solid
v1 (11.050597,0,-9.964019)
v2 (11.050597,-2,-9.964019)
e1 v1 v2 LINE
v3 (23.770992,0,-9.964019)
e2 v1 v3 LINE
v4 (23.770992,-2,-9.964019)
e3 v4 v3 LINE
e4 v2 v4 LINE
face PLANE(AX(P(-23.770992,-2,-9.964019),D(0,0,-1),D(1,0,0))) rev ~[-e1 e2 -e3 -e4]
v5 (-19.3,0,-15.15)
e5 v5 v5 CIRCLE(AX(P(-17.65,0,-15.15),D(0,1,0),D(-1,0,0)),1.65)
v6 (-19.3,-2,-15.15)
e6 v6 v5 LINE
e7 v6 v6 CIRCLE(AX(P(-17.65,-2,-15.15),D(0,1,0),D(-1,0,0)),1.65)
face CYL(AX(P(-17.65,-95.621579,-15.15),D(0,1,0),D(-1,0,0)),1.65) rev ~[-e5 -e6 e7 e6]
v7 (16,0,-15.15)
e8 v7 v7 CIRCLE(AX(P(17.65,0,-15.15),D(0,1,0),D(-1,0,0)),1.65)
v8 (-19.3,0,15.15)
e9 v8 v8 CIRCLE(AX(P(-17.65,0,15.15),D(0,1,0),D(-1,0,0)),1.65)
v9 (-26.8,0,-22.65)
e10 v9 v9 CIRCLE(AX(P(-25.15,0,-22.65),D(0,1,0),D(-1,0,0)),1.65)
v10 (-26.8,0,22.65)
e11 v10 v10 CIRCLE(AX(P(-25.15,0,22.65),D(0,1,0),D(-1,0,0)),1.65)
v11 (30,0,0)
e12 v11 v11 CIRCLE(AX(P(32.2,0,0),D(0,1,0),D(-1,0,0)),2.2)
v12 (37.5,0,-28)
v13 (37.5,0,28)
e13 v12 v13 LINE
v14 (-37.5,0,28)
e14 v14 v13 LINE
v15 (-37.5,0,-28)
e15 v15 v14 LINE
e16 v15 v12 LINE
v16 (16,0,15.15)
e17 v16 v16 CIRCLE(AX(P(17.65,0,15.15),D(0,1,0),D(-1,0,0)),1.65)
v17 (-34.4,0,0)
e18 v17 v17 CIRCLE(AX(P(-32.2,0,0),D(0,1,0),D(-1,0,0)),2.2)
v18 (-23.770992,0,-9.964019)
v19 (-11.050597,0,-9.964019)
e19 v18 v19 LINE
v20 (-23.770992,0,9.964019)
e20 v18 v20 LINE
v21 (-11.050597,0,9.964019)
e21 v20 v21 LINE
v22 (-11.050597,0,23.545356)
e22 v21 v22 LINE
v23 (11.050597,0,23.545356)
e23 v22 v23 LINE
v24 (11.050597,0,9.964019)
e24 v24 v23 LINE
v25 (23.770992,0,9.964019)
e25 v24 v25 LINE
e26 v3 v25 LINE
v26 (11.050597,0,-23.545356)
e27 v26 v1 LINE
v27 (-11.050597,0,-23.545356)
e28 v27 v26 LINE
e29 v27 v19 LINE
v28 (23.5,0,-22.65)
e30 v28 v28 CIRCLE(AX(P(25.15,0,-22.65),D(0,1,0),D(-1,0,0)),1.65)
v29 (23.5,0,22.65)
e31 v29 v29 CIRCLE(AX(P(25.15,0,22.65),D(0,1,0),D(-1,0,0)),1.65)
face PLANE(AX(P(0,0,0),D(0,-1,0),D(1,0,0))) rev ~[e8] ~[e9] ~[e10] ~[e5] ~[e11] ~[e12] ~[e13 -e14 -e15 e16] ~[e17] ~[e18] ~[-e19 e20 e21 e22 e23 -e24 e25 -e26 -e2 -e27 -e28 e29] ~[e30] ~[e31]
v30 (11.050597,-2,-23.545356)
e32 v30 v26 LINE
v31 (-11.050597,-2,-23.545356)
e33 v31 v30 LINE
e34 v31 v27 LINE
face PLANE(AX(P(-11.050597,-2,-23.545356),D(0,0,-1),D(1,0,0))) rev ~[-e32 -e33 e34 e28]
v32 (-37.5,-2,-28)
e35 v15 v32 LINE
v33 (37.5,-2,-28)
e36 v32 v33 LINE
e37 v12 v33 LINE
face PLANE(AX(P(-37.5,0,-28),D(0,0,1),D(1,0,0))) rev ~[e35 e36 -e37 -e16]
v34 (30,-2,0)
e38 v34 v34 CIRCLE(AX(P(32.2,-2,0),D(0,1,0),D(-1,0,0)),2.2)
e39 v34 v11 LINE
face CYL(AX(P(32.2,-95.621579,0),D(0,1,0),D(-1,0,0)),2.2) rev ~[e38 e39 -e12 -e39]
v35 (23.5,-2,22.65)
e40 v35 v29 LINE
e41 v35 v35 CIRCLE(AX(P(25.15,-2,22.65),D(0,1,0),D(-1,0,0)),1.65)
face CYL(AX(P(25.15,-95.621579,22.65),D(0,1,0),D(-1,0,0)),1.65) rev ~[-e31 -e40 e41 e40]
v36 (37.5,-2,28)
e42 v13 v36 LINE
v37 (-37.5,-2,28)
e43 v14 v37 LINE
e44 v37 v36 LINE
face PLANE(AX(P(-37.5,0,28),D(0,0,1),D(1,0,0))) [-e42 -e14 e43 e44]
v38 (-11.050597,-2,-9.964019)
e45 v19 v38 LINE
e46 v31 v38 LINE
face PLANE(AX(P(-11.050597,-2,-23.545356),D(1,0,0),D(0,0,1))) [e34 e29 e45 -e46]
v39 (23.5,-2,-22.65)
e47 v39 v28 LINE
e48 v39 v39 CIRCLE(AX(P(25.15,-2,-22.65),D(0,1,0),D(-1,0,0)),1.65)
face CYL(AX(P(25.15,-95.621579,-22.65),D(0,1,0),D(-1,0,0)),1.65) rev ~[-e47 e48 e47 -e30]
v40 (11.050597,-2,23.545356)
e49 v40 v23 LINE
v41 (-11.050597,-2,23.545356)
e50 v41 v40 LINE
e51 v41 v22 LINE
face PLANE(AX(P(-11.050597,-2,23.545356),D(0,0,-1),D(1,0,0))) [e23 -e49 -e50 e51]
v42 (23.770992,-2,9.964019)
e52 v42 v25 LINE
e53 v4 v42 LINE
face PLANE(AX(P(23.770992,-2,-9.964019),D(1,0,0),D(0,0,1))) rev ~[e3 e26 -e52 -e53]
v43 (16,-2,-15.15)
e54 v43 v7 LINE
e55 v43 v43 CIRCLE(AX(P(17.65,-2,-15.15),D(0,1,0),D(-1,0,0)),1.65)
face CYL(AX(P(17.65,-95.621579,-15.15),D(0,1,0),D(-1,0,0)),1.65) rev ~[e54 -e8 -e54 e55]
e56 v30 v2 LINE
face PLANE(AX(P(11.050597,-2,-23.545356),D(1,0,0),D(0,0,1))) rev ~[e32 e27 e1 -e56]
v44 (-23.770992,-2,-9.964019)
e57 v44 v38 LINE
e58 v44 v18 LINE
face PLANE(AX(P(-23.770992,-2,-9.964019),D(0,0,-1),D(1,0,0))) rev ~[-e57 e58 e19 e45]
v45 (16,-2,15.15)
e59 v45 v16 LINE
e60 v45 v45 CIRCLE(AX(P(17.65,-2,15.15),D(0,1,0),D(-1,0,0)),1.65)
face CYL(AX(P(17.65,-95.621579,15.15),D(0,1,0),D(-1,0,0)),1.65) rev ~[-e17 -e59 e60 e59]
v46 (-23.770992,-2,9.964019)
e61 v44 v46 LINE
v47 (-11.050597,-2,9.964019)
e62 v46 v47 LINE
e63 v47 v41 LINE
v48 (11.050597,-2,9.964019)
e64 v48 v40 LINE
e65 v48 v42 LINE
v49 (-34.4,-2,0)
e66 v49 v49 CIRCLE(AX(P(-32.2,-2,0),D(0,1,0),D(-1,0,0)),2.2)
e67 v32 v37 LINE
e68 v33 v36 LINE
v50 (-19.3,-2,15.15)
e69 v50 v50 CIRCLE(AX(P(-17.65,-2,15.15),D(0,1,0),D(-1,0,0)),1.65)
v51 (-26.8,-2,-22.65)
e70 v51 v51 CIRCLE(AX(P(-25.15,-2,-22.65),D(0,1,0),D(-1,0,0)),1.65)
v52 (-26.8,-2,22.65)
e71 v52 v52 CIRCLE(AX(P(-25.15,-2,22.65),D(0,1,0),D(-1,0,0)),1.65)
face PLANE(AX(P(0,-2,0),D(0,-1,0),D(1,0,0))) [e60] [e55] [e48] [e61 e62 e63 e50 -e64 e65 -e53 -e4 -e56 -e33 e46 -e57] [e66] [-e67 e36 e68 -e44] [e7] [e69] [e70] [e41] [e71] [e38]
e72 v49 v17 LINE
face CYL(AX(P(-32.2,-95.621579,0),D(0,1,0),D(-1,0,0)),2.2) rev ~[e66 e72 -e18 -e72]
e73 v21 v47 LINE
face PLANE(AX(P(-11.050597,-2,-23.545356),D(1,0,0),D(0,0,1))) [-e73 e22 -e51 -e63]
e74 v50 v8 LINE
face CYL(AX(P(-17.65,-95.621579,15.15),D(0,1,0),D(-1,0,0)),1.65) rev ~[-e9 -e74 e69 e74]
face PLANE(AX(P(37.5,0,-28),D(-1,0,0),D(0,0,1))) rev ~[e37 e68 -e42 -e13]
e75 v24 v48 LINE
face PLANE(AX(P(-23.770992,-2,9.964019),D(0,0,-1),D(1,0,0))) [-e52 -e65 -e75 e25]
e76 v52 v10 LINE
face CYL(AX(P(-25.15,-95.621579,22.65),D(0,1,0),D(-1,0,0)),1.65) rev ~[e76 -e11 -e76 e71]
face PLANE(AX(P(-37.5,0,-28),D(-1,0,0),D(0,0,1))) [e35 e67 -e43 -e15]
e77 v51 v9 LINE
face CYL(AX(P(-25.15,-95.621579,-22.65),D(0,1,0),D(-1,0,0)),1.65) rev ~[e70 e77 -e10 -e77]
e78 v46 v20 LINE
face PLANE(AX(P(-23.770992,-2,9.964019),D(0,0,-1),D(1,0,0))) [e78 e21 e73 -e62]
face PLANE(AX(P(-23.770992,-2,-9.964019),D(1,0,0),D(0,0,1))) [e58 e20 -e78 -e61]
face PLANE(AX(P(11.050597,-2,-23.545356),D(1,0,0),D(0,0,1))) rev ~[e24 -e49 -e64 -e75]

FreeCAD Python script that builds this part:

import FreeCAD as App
import Part
import Sketcher
Q = App.Units.Quantity

doc = App.newDocument("Part")
body = doc.addObject("PartDesign::Body", "Body")

# Sketch on XZ plane
sketch1 = body.newObject("Sketcher::SketchObject", "Sketch")
sketch1.AttachmentSupport = (doc.getObject("XZ_Plane"), [""])
sketch1.MapMode = "FlatFace"
sketch1.addGeometry([
    Part.LineSegment(App.Vector(-38, 28, 0), App.Vector(-38, -28, 0)),
    Part.LineSegment(App.Vector(-38, -28, 0), App.Vector(38, -28, 0)),
    Part.LineSegment(App.Vector(38, -28, 0), App.Vector(38, 28, 0)),
    Part.LineSegment(App.Vector(38, 28, 0), App.Vector(-38, 28, 0)),
], False)
sketch1.addConstraint([
    Sketcher.Constraint("Coincident", 0, 2, 1, 1),
    Sketcher.Constraint("Coincident", 1, 2, 2, 1),
    Sketcher.Constraint("Coincident", 2, 2, 3, 1),
    Sketcher.Constraint("Coincident", 3, 2, 0, 1),
    Sketcher.Constraint("Vertical", 0),
    Sketcher.Constraint("Horizontal", 1),
    Sketcher.Constraint("Vertical", 2),
    Sketcher.Constraint("Horizontal", 3),
    Sketcher.Constraint("Symmetric", 0, 2, 2, 2, -1, 1),
    Sketcher.Constraint("DistanceX", 1, 1, 1, 2, Q("75 mm")),
    Sketcher.Constraint("DistanceY", 0, 2, 0, 1, Q("56 mm")),
])
pad1 = body.newObject("PartDesign::Pad", "Pad")
pad1.Profile = sketch1
pad1.Length = 2

# Sketch on XZ plane
sketch2 = body.newObject("Sketcher::SketchObject", "Sketch001")
sketch2.AttachmentSupport = (doc.getObject("XZ_Plane"), [""])
sketch2.MapMode = "FlatFace"
sketch2.AttachmentOffset = App.Placement(App.Vector(0, 0, 2), App.Rotation())
sketch2.addGeometry([
    Part.Circle(App.Vector(-32.2, 0, 0), App.Vector(0, 0, 1), 2.2),
    Part.Circle(App.Vector(32.2, 0, 0), App.Vector(0, 0, 1), 2.2),
], False)
sketch2.addConstraint([
    Sketcher.Constraint("Equal", 0, 1),
    Sketcher.Constraint("Symmetric", 0, 3, 1, 3, -1, 1),
    Sketcher.Constraint("PointOnObject", 0, 3, -1),
    Sketcher.Constraint("Diameter", 0, Q("4.4 mm")),
    Sketcher.Constraint("DistanceX", 0, 3, -1, 1, Q("32.2 mm")),
])
doc.recompute()
hole = body.newObject("PartDesign::Hole", "Hole")
hole.Profile = sketch2
hole.ThreadType = "None"
hole.Diameter = 4.4
hole.DepthType = "ThroughAll"

# Sketch on XZ plane
sketch3 = body.newObject("Sketcher::SketchObject", "Sketch002")
sketch3.AttachmentSupport = (doc.getObject("XZ_Plane"), [""])
sketch3.MapMode = "FlatFace"
sketch3.AttachmentOffset = App.Placement(App.Vector(0, 0, 2), App.Rotation())
sketch3.addGeometry([
    Part.Circle(App.Vector(-25.1, 22.6, 0), App.Vector(0, 0, 1), 1.6),
    Part.Circle(App.Vector(-25.1, -22.6, 0), App.Vector(0, 0, 1), 1.6),
    Part.Circle(App.Vector(25.1, -22.6, 0), App.Vector(0, 0, 1), 1.6),
    Part.Circle(App.Vector(25.1, 22.6, 0), App.Vector(0, 0, 1), 1.6),
], False)
sketch3.addConstraint([
    Sketcher.Constraint("Equal", 0, 1),
    Sketcher.Constraint("Equal", 1, 2),
    Sketcher.Constraint("Equal", 2, 3),
    Sketcher.Constraint("Symmetric", 0, 3, 2, 3, -1, 1),
    Sketcher.Constraint("Symmetric", 1, 3, 3, 3, -1, 1),
    Sketcher.Constraint("Symmetric", 1, 3, 2, 3, -2),
    Sketcher.Constraint("Diameter", 0, Q("3.3 mm")),
    Sketcher.Constraint("DistanceY", 1, 3, 0, 3, Q("45.3 mm")),
    Sketcher.Constraint("DistanceX", 1, 3, 2, 3, Q("50.3 mm")),
])
doc.recompute()
hole2 = body.newObject("PartDesign::Hole", "Hole001")
hole2.Profile = sketch3
hole2.ThreadType = "None"
hole2.Diameter = 3.3
hole2.DepthType = "ThroughAll"

# Sketch on XZ plane
sketch4 = body.newObject("Sketcher::SketchObject", "Sketch003")
sketch4.AttachmentSupport = (doc.getObject("XZ_Plane"), [""])
sketch4.MapMode = "FlatFace"
sketch4.AttachmentOffset = App.Placement(App.Vector(0, 0, 2), App.Rotation())
sketch4.addGeometry([
    Part.Circle(App.Vector(-17.6, 15.2, 0), App.Vector(0, 0, 1), 1.6),
    Part.Circle(App.Vector(-17.6, -15.2, 0), App.Vector(0, 0, 1), 1.6),
    Part.Circle(App.Vector(17.6, -15.2, 0), App.Vector(0, 0, 1), 1.6),
    Part.Circle(App.Vector(17.6, 15.2, 0), App.Vector(0, 0, 1), 1.6),
], False)
sketch4.addConstraint([
    Sketcher.Constraint("Equal", 0, 1),
    Sketcher.Constraint("Equal", 1, 2),
    Sketcher.Constraint("Equal", 2, 3),
    Sketcher.Constraint("Symmetric", 0, 3, 2, 3, -1, 1),
    Sketcher.Constraint("Symmetric", 1, 3, 3, 3, -1, 1),
    Sketcher.Constraint("Symmetric", 1, 3, 2, 3, -2),
    Sketcher.Constraint("Diameter", 0, Q("3.3 mm")),
    Sketcher.Constraint("DistanceY", 1, 3, 0, 3, Q("30.3 mm")),
    Sketcher.Constraint("DistanceX", 1, 3, 2, 3, Q("35.3 mm")),
])
doc.recompute()
hole3 = body.newObject("PartDesign::Hole", "Hole002")
hole3.Profile = sketch4
hole3.ThreadType = "None"
hole3.Diameter = 3.3
hole3.DepthType = "ThroughAll"

# Sketch on XZ plane
sketch5 = body.newObject("Sketcher::SketchObject", "Sketch004")
sketch5.AttachmentSupport = (doc.getObject("XZ_Plane"), [""])
sketch5.MapMode = "FlatFace"
sketch5.AttachmentOffset = App.Placement(App.Vector(0, 0, 2), App.Rotation())
sketch5.addGeometry([
    Part.LineSegment(App.Vector(-24, 10, 0), App.Vector(-24, -10, 0)),
    Part.LineSegment(App.Vector(-24, -10, 0), App.Vector(24, -10, 0)),
    Part.LineSegment(App.Vector(24, -10, 0), App.Vector(24, 10, 0)),
    Part.LineSegment(App.Vector(24, 10, 0), App.Vector(-24, 10, 0)),
], False)
sketch5.addConstraint([
    Sketcher.Constraint("Coincident", 0, 2, 1, 1),
    Sketcher.Constraint("Coincident", 1, 2, 2, 1),
    Sketcher.Constraint("Coincident", 2, 2, 3, 1),
    Sketcher.Constraint("Coincident", 3, 2, 0, 1),
    Sketcher.Constraint("Vertical", 0),
    Sketcher.Constraint("Horizontal", 1),
    Sketcher.Constraint("Vertical", 2),
    Sketcher.Constraint("Horizontal", 3),
    Sketcher.Constraint("Symmetric", 0, 2, 2, 2, -1, 1),
    Sketcher.Constraint("DistanceY", 0, 2, 0, 1, Q("19.928038 mm")),
    Sketcher.Constraint("DistanceX", 1, 1, 1, 2, Q("47.541983 mm")),
])
pocket1 = body.newObject("PartDesign::Pocket", "Pocket")
pocket1.Profile = sketch5
pocket1.Length = 25

# Sketch on XZ plane
sketch6 = body.newObject("Sketcher::SketchObject", "Sketch005")
sketch6.AttachmentSupport = (doc.getObject("XZ_Plane"), [""])
sketch6.MapMode = "FlatFace"
sketch6.AttachmentOffset = App.Placement(App.Vector(0, 0, 2), App.Rotation())
sketch6.addGeometry([
    Part.LineSegment(App.Vector(-11, 24, 0), App.Vector(-11, -24, 0)),
    Part.LineSegment(App.Vector(-11, -24, 0), App.Vector(11, -24, 0)),
    Part.LineSegment(App.Vector(11, -24, 0), App.Vector(11, 24, 0)),
    Part.LineSegment(App.Vector(11, 24, 0), App.Vector(-11, 24, 0)),
], False)
sketch6.addConstraint([
    Sketcher.Constraint("Coincident", 0, 2, 1, 1),
    Sketcher.Constraint("Coincident", 1, 2, 2, 1),
    Sketcher.Constraint("Coincident", 2, 2, 3, 1),
    Sketcher.Constraint("Coincident", 3, 2, 0, 1),
    Sketcher.Constraint("Vertical", 0),
    Sketcher.Constraint("Horizontal", 1),
    Sketcher.Constraint("Vertical", 2),
    Sketcher.Constraint("Horizontal", 3),
    Sketcher.Constraint("Symmetric", 0, 2, 2, 2, -1, 1),
    Sketcher.Constraint("DistanceX", 1, 1, 1, 2, Q("22.101194 mm")),
    Sketcher.Constraint("DistanceY", 0, 2, 0, 1, Q("47.090713 mm")),
])
pocket2 = body.newObject("PartDesign::Pocket", "Pocket001")
pocket2.Profile = sketch6
pocket2.Length = 25

doc.recompute()
